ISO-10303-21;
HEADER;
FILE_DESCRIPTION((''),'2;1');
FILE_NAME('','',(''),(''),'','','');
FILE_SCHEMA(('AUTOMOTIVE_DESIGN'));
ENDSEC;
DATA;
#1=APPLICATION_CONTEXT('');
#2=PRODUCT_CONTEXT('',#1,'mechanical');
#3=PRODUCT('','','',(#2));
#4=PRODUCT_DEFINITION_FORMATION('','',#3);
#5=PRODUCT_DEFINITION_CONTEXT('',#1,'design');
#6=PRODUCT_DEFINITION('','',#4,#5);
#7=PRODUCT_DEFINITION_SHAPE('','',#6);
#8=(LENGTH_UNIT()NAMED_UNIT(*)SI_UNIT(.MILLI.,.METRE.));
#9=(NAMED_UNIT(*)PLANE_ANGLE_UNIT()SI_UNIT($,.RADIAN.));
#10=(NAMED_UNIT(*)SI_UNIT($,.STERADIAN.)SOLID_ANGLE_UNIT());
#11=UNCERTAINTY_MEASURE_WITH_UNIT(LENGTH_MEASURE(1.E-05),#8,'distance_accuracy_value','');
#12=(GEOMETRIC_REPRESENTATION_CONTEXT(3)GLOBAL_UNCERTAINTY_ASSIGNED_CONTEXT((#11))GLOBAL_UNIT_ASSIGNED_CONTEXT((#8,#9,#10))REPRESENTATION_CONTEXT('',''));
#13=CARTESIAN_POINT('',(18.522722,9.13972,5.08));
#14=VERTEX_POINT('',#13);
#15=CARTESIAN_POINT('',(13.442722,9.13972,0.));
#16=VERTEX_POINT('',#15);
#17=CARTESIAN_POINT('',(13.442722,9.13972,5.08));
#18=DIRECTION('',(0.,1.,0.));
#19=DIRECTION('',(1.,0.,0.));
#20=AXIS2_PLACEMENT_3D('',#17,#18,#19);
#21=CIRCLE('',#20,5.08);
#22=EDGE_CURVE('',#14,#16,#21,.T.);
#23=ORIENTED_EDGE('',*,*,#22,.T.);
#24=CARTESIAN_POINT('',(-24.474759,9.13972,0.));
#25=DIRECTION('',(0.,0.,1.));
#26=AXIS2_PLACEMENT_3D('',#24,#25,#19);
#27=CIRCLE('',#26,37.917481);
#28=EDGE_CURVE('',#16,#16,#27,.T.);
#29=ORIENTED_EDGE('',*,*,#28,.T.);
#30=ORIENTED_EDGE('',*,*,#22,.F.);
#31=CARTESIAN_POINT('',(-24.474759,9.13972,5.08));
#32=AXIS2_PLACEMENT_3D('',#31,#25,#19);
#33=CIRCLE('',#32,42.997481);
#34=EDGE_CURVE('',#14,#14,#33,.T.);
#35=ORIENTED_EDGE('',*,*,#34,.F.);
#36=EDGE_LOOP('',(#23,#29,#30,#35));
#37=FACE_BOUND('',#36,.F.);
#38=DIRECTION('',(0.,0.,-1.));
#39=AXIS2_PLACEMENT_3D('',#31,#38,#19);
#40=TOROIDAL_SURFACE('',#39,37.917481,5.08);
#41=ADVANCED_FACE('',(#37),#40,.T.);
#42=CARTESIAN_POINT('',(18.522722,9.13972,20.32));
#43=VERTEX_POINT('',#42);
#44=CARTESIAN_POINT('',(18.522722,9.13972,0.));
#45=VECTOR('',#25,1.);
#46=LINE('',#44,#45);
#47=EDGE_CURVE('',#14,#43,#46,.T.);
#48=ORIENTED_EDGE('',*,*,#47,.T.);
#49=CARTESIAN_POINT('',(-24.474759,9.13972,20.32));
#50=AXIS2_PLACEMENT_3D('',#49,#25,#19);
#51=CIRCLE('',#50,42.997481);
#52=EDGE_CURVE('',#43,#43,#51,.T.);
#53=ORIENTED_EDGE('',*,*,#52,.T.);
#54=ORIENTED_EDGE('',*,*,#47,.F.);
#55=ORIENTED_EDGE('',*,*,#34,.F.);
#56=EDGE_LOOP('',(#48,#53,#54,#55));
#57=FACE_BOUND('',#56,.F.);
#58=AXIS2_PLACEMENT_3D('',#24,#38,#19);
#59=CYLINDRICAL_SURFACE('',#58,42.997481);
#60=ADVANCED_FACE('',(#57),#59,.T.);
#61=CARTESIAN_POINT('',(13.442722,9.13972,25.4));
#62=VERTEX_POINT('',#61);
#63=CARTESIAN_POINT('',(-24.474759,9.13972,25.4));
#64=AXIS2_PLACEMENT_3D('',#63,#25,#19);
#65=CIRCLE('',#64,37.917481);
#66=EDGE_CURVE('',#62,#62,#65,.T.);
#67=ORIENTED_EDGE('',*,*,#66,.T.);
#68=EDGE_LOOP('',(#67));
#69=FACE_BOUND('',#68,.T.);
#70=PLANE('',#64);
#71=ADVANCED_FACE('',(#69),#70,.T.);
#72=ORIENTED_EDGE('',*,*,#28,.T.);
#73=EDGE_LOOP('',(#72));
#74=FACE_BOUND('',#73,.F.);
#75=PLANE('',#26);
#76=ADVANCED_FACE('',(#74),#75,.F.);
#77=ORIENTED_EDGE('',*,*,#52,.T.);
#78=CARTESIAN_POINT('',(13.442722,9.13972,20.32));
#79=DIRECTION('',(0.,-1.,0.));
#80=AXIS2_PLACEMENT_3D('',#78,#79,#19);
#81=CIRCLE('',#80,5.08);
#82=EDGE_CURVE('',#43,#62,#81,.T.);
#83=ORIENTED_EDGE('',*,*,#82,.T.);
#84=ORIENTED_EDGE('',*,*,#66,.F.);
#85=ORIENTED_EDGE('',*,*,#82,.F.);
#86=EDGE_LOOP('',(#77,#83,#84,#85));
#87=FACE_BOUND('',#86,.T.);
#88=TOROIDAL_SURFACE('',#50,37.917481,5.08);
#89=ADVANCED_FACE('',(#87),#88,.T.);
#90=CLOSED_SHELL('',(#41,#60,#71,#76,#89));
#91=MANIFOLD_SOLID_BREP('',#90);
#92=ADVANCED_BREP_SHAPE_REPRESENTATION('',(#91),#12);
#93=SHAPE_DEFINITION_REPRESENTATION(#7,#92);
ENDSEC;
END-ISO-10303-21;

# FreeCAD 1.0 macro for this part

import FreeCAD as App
import Part
import Sketcher
Q = App.Units.Quantity

doc = App.newDocument("Part")
params = doc.addObject("Spreadsheet::Sheet", "Params")
for row, (alias, value) in enumerate([
    ("pad1_length", "1 in"),
    ("fillet_radius", "0.2 in"),
], start=1):
    params.set(f"A{row}", alias)
    params.set(f"B{row}", "=" + value)
    params.setAlias(f"B{row}", alias)

body = doc.addObject("PartDesign::Body", "Body")

# Sketch on XY plane
sketch1 = doc.addObject("Sketcher::SketchObject", "Sketch")
body.addObject(sketch1)
sketch1.AttachmentSupport = (doc.XY_Plane, [""])
sketch1.MapMode = "FlatFace"
sketch1.addGeometry(Part.Circle(App.Vector(-24, 9, 0), App.Vector(0, 0, 1), 43), False)
sketch1.addConstraint(Sketcher.Constraint("Diameter", 0, Q("85.994962 mm")))
sketch1.addConstraint(Sketcher.Constraint("DistanceX", 0, 3, -1, 1, Q("24.474759 mm")))
sketch1.addConstraint(Sketcher.Constraint("DistanceY", -1, 1, 0, 3, Q("9.13972 mm")))
pad1 = doc.addObject("PartDesign::Pad", "Pad")
body.addObject(pad1)
pad1.Profile = sketch1
pad1.setExpression("Length", "Params.pad1_length")
doc.recompute()

fillet = doc.addObject("PartDesign::Fillet", "Fillet")
body.addObject(fillet)
fillet.Base = (pad1, ["Edge1"])
fillet.UseAllEdges = True
fillet.setExpression("Radius", "Params.fillet_radius")

doc.recompute()
